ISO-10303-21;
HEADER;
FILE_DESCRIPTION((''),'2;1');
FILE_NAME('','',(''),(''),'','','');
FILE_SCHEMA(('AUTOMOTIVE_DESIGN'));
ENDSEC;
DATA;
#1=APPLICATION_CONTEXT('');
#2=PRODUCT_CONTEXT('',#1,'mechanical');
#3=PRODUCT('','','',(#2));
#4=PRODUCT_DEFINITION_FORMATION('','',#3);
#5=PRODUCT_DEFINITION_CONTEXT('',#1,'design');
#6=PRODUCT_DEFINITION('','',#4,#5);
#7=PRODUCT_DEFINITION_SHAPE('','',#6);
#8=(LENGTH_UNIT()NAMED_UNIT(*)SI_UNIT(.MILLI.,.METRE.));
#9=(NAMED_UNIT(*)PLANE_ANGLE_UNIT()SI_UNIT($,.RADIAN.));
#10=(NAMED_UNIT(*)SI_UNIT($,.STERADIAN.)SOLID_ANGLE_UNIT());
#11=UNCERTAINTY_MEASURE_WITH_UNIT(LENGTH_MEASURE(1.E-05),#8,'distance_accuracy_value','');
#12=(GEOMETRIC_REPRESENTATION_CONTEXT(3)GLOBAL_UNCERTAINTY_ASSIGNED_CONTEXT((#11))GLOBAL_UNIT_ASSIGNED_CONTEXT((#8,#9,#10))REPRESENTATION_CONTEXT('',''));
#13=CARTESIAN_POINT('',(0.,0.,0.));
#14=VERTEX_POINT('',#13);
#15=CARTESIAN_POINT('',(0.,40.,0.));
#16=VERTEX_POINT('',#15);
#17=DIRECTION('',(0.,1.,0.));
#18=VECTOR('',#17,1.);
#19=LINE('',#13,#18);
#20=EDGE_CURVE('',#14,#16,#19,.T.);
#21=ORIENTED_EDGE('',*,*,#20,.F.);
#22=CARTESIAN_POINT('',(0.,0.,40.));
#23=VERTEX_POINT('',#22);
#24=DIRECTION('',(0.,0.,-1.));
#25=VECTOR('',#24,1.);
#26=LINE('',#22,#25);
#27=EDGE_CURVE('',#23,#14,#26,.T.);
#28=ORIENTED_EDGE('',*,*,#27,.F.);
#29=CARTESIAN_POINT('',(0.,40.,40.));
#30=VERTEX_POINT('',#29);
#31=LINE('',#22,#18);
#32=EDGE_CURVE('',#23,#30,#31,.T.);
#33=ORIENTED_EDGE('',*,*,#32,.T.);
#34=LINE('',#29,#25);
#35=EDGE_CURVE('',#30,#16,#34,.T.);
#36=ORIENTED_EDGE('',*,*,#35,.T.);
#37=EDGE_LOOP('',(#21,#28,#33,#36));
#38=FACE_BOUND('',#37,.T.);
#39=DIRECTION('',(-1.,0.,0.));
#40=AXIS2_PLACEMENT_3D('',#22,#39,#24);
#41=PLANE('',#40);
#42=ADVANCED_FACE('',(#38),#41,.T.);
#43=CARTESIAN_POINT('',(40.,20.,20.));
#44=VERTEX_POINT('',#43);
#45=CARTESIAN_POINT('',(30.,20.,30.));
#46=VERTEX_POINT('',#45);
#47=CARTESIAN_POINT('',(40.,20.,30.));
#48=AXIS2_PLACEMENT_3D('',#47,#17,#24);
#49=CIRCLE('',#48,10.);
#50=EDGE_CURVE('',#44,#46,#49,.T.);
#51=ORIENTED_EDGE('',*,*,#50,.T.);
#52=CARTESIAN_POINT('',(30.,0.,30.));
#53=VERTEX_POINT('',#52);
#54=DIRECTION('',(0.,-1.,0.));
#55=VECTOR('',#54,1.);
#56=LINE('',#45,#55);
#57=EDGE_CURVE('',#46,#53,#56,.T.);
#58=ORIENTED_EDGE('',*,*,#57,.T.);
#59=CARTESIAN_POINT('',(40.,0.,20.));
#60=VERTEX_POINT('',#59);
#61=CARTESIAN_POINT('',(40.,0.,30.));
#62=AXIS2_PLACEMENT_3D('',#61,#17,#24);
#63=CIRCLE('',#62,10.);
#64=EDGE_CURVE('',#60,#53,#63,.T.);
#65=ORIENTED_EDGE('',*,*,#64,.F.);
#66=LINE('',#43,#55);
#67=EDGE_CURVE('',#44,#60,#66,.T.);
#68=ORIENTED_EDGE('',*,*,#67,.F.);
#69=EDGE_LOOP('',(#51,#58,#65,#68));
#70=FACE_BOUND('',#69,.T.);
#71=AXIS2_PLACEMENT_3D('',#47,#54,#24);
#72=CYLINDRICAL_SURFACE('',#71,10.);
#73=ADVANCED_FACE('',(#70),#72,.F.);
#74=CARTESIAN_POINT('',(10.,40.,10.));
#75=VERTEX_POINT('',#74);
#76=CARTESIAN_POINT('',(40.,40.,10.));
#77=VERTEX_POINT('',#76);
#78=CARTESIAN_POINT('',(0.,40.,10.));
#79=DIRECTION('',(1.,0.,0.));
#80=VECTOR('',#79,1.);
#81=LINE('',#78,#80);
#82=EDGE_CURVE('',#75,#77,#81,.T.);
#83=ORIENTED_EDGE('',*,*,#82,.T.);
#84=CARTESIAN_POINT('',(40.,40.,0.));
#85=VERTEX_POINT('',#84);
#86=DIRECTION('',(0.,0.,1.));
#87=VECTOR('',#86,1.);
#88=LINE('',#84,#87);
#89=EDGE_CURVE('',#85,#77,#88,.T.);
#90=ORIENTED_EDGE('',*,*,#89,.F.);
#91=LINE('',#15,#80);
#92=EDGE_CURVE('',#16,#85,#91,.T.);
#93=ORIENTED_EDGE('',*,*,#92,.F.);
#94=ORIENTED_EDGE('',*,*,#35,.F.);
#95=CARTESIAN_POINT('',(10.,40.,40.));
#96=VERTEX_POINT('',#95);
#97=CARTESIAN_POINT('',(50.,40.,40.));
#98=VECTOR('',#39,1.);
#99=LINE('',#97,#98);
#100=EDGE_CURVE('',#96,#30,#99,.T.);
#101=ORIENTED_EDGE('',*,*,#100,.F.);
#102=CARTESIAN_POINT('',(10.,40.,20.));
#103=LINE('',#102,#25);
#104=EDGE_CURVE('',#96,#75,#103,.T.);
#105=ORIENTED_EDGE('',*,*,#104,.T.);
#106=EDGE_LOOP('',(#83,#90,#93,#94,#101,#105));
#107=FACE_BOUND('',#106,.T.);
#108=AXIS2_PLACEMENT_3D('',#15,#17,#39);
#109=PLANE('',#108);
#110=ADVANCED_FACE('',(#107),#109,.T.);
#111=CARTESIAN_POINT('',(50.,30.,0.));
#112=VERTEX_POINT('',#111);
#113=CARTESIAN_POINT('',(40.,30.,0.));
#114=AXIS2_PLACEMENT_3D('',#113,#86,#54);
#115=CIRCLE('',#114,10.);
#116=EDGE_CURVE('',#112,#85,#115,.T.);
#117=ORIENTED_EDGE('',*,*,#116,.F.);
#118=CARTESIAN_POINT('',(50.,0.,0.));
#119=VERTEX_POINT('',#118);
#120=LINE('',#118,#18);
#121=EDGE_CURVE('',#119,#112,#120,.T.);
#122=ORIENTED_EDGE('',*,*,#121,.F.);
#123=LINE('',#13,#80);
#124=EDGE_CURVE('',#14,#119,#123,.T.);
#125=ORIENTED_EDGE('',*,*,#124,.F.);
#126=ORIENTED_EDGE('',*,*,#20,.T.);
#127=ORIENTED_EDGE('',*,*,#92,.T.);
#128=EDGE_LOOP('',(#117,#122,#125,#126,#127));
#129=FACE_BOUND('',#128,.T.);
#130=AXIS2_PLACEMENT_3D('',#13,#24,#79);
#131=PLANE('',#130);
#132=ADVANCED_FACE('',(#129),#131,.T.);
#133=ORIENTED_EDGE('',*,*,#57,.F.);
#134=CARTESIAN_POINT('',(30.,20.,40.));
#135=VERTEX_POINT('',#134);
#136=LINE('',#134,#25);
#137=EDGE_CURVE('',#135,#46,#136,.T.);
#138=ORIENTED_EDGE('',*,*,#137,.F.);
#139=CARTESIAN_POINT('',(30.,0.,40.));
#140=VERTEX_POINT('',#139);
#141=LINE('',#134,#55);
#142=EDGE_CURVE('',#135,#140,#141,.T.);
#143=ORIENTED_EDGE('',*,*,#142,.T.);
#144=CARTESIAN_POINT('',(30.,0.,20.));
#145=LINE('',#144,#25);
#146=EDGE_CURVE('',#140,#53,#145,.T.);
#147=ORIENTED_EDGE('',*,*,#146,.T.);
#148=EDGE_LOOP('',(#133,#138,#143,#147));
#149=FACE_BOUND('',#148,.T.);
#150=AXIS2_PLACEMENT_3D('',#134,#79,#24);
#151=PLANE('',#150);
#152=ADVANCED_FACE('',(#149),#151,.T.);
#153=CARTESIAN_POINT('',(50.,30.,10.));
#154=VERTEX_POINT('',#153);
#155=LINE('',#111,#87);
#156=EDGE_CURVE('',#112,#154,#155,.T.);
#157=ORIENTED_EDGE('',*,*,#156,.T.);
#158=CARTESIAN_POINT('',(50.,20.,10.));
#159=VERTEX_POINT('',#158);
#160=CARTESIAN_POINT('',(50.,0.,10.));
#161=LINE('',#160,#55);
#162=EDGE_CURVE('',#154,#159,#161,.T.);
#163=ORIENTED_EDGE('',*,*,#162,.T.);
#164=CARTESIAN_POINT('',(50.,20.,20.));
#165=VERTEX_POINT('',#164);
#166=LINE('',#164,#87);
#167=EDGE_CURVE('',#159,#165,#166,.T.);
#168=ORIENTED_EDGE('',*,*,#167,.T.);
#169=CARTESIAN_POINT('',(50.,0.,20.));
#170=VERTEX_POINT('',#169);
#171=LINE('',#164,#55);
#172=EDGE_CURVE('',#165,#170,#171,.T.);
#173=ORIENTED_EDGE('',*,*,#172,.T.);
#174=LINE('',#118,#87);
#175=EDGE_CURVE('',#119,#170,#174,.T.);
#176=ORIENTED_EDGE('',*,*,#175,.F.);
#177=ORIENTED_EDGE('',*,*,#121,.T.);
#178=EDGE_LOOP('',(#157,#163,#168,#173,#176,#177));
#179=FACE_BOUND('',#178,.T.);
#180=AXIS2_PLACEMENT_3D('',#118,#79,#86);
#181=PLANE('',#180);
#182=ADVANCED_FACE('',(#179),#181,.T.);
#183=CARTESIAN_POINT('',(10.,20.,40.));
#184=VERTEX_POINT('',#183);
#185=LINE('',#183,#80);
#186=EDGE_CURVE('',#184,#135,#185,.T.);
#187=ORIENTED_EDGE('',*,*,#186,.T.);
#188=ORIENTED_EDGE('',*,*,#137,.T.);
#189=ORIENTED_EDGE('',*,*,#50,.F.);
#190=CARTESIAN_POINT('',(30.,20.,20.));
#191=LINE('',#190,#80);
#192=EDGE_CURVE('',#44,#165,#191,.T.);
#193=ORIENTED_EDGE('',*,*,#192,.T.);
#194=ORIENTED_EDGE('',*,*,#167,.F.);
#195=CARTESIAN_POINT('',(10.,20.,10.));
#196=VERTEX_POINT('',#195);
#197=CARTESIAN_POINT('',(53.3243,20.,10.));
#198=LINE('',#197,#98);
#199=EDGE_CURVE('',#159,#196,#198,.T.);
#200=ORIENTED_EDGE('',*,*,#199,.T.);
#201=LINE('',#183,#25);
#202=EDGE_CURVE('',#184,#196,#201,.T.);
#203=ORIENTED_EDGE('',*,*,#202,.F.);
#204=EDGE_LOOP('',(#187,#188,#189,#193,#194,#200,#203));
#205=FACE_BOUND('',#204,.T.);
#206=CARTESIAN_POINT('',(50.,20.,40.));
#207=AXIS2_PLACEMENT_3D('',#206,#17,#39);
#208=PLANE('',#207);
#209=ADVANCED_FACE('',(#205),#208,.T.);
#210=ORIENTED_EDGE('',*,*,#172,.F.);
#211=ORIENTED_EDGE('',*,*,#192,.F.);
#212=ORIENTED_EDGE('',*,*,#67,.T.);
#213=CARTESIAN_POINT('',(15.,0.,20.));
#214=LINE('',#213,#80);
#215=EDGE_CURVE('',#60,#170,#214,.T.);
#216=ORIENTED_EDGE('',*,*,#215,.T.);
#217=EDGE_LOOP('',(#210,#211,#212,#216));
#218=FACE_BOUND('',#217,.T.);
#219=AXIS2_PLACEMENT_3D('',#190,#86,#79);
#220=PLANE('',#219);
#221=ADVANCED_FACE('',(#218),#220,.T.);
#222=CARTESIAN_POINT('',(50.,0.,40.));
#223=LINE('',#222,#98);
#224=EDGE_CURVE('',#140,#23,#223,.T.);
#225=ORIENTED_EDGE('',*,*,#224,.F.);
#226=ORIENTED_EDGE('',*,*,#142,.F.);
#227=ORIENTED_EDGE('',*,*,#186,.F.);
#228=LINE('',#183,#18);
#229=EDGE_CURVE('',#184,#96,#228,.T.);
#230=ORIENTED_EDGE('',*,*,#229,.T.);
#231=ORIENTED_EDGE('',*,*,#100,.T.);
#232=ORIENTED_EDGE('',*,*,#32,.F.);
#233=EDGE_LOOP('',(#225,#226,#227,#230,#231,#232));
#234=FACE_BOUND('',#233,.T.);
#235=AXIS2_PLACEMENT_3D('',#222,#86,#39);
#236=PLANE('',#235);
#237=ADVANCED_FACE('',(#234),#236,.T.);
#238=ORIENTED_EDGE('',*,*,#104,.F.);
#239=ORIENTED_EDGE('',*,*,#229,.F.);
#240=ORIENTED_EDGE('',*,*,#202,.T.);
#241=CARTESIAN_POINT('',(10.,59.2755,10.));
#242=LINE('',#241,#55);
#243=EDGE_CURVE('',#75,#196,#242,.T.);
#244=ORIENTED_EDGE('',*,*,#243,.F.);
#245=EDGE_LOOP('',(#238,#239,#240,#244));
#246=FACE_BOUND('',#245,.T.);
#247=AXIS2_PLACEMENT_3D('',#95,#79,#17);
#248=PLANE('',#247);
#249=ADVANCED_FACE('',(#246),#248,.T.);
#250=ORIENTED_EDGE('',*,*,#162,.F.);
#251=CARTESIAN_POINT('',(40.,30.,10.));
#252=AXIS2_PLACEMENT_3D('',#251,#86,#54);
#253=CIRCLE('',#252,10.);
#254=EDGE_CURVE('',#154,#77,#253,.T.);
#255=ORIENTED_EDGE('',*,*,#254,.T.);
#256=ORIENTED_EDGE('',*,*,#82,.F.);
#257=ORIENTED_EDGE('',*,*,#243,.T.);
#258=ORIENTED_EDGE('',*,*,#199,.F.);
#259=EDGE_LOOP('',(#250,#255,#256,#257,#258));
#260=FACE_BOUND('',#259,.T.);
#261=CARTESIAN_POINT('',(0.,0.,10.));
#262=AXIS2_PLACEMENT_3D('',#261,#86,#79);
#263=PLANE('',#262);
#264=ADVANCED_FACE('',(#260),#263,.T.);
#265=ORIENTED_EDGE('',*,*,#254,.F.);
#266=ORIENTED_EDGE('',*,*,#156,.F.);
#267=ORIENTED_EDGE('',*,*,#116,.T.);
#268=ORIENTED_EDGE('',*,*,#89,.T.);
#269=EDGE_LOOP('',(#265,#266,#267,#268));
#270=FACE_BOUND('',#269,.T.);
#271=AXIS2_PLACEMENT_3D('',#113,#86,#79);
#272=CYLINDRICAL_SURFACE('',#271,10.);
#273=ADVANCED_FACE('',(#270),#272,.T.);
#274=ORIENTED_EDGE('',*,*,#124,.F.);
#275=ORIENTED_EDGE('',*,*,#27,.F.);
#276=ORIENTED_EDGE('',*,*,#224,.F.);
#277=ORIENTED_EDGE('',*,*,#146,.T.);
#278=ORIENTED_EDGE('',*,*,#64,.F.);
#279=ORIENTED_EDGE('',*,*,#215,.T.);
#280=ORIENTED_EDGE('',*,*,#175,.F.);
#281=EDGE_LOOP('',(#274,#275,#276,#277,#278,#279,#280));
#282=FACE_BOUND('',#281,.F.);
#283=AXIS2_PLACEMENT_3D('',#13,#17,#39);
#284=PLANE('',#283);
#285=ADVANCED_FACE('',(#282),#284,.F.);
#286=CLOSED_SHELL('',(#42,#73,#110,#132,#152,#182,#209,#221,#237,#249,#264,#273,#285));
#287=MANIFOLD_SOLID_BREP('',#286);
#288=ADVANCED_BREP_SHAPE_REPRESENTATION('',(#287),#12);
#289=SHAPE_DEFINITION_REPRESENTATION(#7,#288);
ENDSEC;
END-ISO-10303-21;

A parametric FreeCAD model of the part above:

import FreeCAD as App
import Part
import Sketcher
from FreeCAD import Vector
Q = App.Units.Quantity


def edges_at(feature, points):
    """Names of the edges that pass closest to the given points."""
    edges = feature.Shape.Edges
    near = lambda p: min(range(len(edges)), key=lambda i: edges[i].distToShape(Part.Vertex(*p))[0])
    return sorted({f"Edge{near(p) + 1}" for p in points})

doc = App.newDocument("Part")
body = doc.addObject("PartDesign::Body", "Body")

sketch1 = body.newObject("Sketcher::SketchObject", "Sketch")
sketch1.AttachmentSupport = (doc.getObject("XZ_Plane"), [""])
sketch1.MapMode = "FlatFace"
sketch1.addGeometry(Part.LineSegment(Vector(50, 0, 0), Vector(0, 0, 0)), False)
sketch1.addGeometry(Part.LineSegment(Vector(0, 0, 0), Vector(0, 40, 0)), False)
sketch1.addGeometry(Part.LineSegment(Vector(0, 40, 0), Vector(50, 40, 0)), False)
sketch1.addGeometry(Part.LineSegment(Vector(50, 40, 0), Vector(50, 0, 0)), False)
sketch1.addConstraint(Sketcher.Constraint("Coincident", 0, 2, 1, 1))
sketch1.addConstraint(Sketcher.Constraint("Coincident", 1, 2, 2, 1))
sketch1.addConstraint(Sketcher.Constraint("Coincident", 2, 2, 3, 1))
sketch1.addConstraint(Sketcher.Constraint("Coincident", 3, 2, 0, 1))
sketch1.addConstraint(Sketcher.Constraint("Horizontal", 0))
sketch1.addConstraint(Sketcher.Constraint("Vertical", 1))
sketch1.addConstraint(Sketcher.Constraint("Horizontal", 2))
sketch1.addConstraint(Sketcher.Constraint("Vertical", 3))
sketch1.addConstraint(Sketcher.Constraint("Coincident", 0, 2, -1, 1))
sketch1.addConstraint(Sketcher.Constraint("DistanceX", 0, 2, 0, 1, Q("50 mm")))
sketch1.addConstraint(Sketcher.Constraint("DistanceY", 1, 1, 1, 2, Q("40 mm")))
pad1 = body.newObject("PartDesign::Pad", "Pad")
pad1.Profile = sketch1
pad1.Length = 40
pad1.Reversed = True

sketch2 = body.newObject("Sketcher::SketchObject", "Sketch001")
sketch2.AttachmentSupport = (doc.getObject("XY_Plane"), [""])
sketch2.MapMode = "FlatFace"
sketch2.AttachmentOffset = App.Placement(Vector(0, 0, 40), App.Rotation())
sketch2.addGeometry(Part.LineSegment(Vector(10, 59, 0), Vector(10, 20, 0)), False)
sketch2.addGeometry(Part.LineSegment(Vector(10, 20, 0), Vector(53, 20, 0)), False)
sketch2.addGeometry(Part.LineSegment(Vector(53, 20, 0), Vector(53, 59, 0)), False)
sketch2.addGeometry(Part.LineSegment(Vector(53, 59, 0), Vector(10, 59, 0)), False)
sketch2.addConstraint(Sketcher.Constraint("Coincident", 0, 2, 1, 1))
sketch2.addConstraint(Sketcher.Constraint("Coincident", 1, 2, 2, 1))
sketch2.addConstraint(Sketcher.Constraint("Coincident", 2, 2, 3, 1))
sketch2.addConstraint(Sketcher.Constraint("Coincident", 3, 2, 0, 1))
sketch2.addConstraint(Sketcher.Constraint("Vertical", 0))
sketch2.addConstraint(Sketcher.Constraint("Horizontal", 1))
sketch2.addConstraint(Sketcher.Constraint("Vertical", 2))
sketch2.addConstraint(Sketcher.Constraint("Horizontal", 3))
sketch2.addConstraint(Sketcher.Constraint("DistanceX", -1, 1, 0, 2, Q("10 mm")))
sketch2.addConstraint(Sketcher.Constraint("DistanceY", -1, 1, 0, 2, Q("20 mm")))
sketch2.addConstraint(Sketcher.Constraint("DistanceX", 1, 1, 1, 2, Q("43.3243 mm")))
sketch2.addConstraint(Sketcher.Constraint("DistanceY", 0, 2, 0, 1, Q("39.2755 mm")))
pocket1 = body.newObject("PartDesign::Pocket", "Pocket")
pocket1.Profile = sketch2
pocket1.Length = 30

sketch3 = body.newObject("Sketcher::SketchObject", "Sketch002")
sketch3.AttachmentSupport = (doc.getObject("XZ_Plane"), [""])
sketch3.MapMode = "FlatFace"
sketch3.AttachmentOffset = App.Placement(Vector(0, 0, -20), App.Rotation())
sketch3.addGeometry(Part.LineSegment(Vector(50, 40, 0), Vector(50, 20, 0)), False)
sketch3.addGeometry(Part.LineSegment(Vector(50, 20, 0), Vector(30, 20, 0)), False)
sketch3.addGeometry(Part.LineSegment(Vector(30, 20, 0), Vector(30, 40, 0)), False)
sketch3.addGeometry(Part.LineSegment(Vector(30, 40, 0), Vector(50, 40, 0)), False)
sketch3.addConstraint(Sketcher.Constraint("Coincident", 0, 2, 1, 1))
sketch3.addConstraint(Sketcher.Constraint("Coincident", 1, 2, 2, 1))
sketch3.addConstraint(Sketcher.Constraint("Coincident", 2, 2, 3, 1))
sketch3.addConstraint(Sketcher.Constraint("Coincident", 3, 2, 0, 1))
sketch3.addConstraint(Sketcher.Constraint("Vertical", 0))
sketch3.addConstraint(Sketcher.Constraint("Horizontal", 1))
sketch3.addConstraint(Sketcher.Constraint("Vertical", 2))
sketch3.addConstraint(Sketcher.Constraint("Horizontal", 3))
sketch3.addConstraint(Sketcher.Constraint("Equal", 3, 0))
sketch3.addConstraint(Sketcher.Constraint("DistanceX", 1, 2, 1, 1, Q("20 mm")))
sketch3.addConstraint(Sketcher.Constraint("DistanceY", -1, 1, 0, 2, Q("20 mm")))
sketch3.addConstraint(Sketcher.Constraint("DistanceX", -1, 1, 0, 2, Q("50 mm")))
pocket2 = body.newObject("PartDesign::Pocket", "Pocket001")
pocket2.Profile = sketch3
pocket2.Type = "ThroughAll"
pocket2.Reversed = True
doc.recompute()

fillet = body.newObject("PartDesign::Fillet", "Fillet")
fillet.Base = (pocket2, edges_at(pocket2, [(30, 10, 20)]))
fillet.Radius = 10
doc.recompute()

fillet2 = body.newObject("PartDesign::Fillet", "Fillet001")
fillet2.Base = (fillet, edges_at(fillet, [(50, 40, 5)]))
fillet2.Radius = 10

doc.recompute()
